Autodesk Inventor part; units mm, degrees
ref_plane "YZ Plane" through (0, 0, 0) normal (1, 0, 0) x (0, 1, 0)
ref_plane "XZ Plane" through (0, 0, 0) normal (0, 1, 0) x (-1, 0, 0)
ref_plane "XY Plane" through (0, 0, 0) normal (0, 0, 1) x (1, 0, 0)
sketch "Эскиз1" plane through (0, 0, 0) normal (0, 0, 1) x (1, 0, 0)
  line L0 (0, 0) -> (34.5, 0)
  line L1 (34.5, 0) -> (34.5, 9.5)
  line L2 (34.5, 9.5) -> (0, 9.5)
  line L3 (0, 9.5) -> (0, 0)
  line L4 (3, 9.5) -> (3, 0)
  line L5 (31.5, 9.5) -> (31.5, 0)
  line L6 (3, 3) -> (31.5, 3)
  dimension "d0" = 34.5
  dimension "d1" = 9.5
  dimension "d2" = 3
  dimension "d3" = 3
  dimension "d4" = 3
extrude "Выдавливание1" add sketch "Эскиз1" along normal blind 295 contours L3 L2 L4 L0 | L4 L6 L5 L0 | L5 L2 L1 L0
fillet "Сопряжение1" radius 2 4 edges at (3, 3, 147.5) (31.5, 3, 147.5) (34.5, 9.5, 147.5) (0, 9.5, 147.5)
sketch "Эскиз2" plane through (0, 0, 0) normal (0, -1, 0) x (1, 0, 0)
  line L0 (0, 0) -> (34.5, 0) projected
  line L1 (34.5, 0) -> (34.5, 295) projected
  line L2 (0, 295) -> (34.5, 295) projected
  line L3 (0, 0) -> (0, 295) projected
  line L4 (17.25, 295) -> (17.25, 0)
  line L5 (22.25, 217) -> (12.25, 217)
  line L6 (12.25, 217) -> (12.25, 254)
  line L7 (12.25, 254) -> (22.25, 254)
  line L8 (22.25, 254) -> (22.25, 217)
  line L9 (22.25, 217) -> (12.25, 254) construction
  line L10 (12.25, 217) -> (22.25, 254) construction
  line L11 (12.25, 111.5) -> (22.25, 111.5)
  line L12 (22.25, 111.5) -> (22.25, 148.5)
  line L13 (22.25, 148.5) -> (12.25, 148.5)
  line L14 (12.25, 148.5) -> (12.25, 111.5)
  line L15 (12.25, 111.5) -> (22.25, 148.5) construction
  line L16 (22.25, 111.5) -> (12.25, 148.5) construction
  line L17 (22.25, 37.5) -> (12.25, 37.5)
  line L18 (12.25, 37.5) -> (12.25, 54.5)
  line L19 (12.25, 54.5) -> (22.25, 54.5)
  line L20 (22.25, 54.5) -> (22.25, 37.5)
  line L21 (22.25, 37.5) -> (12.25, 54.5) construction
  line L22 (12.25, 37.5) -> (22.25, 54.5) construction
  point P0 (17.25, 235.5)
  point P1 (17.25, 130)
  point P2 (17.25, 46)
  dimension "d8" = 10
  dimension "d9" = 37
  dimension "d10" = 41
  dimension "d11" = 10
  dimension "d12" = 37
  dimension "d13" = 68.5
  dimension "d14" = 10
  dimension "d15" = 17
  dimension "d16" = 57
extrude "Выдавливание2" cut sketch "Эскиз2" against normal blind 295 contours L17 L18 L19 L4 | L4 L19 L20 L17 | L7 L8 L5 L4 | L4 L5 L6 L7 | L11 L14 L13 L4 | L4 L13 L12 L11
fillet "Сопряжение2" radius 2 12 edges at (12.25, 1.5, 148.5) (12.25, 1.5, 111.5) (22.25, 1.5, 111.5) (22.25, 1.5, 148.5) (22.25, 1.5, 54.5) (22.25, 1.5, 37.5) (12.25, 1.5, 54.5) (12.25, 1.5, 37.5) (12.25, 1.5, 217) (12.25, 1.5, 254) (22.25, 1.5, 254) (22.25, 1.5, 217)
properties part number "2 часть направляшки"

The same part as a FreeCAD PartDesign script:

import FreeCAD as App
import Part
import Sketcher

V = App.Vector


def edges_at(feature, points):
    """Names of the edges that pass closest to the given points."""
    edges = feature.Shape.Edges
    near = lambda p: min(range(len(edges)), key=lambda i: edges[i].distToShape(Part.Vertex(*p))[0])
    return sorted({f"Edge{near(p) + 1}" for p in points})


def add_polygon(sketch, points):
    """Adds a closed chain of lines whose ends are joined by coincident constraints."""
    first, n = sketch.GeometryCount, len(points)
    for a, b in zip(points, points[1:] + points[:1]):
        sketch.addGeometry(Part.LineSegment(App.Vector(*a, 0), App.Vector(*b, 0)), False)
    for i in range(n):
        sketch.addConstraint(Sketcher.Constraint("Coincident", first + i, 2, first + (i + 1) % n, 1))

doc = App.newDocument("Part")
params = doc.addObject("Spreadsheet::Sheet", "Params")
for row, (alias, value) in enumerate([
    ("sketch1_width", "3 mm"),
    ("sketch1_width2", "34.5 mm"),
    ("sketch1_height", "9.5 mm"),
    ("pad1_length", "295 mm"),
    ("fillet_radius", "2 mm"),
    ("sketch2_width", "10 mm"),
    ("sketch2_height", "17 mm"),
    ("sketch2_height2", "37 mm"),
    ("pocket1_length", "295 mm"),
    ("fillet2_radius", "2 mm"),
], start=1):
    params.set(f"A{row}", alias)
    params.set(f"B{row}", "=" + value)
    params.setAlias(f"B{row}", alias)

body = doc.addObject("PartDesign::Body", "Body")

# Sketch on XY plane
sketch1 = body.newObject("Sketcher::SketchObject", "Sketch")
sketch1.AttachmentSupport = (doc.getObject("XY_Plane"), [""])
sketch1.MapMode = "FlatFace"
add_polygon(sketch1, [(0, 9.5), (0, 0), (34.5, 0), (34.5, 9.5), (31.5, 9.5), (31.5, 3), (3, 3), (3, 9.5)])  # lines 0-7
sketch1.addConstraint(Sketcher.Constraint("Vertical", 0))
sketch1.addConstraint(Sketcher.Constraint("Horizontal", 1))
sketch1.addConstraint(Sketcher.Constraint("Vertical", 2))
sketch1.addConstraint(Sketcher.Constraint("Horizontal", 3))
sketch1.addConstraint(Sketcher.Constraint("Vertical", 4))
sketch1.addConstraint(Sketcher.Constraint("Horizontal", 5))
sketch1.addConstraint(Sketcher.Constraint("Vertical", 6))
sketch1.addConstraint(Sketcher.Constraint("Horizontal", 7))
sketch1.addConstraint(Sketcher.Constraint("Coincident", 0, 2, -1, 1))
sketch1.addConstraint(Sketcher.Constraint("Horizontal", 3, 2, 6, 2))
sketch1.addConstraint(Sketcher.Constraint("Equal", 3, 7))
sketch1.addConstraint(Sketcher.Constraint("DistanceX", 3, 2, 3, 1, 3.0))
sketch1.addConstraint(Sketcher.Constraint("DistanceX", 1, 1, 1, 2, 34.5))
sketch1.addConstraint(Sketcher.Constraint("DistanceY", 0, 2, 0, 1, 9.5))
sketch1.addConstraint(Sketcher.Constraint("DistanceY", -1, 1, 4, 2, 3.0))
sketch1.setExpression("Constraints[19]", "Params.sketch1_width")
sketch1.setExpression("Constraints[20]", "Params.sketch1_width2")
sketch1.setExpression("Constraints[21]", "Params.sketch1_height")
pad1 = body.newObject("PartDesign::Pad", "Pad")
pad1.Profile = sketch1
pad1.setExpression("Length", "Params.pad1_length")
doc.recompute()

fillet = body.newObject("PartDesign::Fillet", "Fillet")
fillet.Base = (pad1, edges_at(pad1, [
    (3, 3, 147.5),
    (31.5, 3, 147.5),
    (34.5, 9.5, 147.5),
    (0, 9.5, 147.5),
]))
fillet.setExpression("Radius", "Params.fillet_radius")

# Sketch on XZ plane
sketch2 = body.newObject("Sketcher::SketchObject", "Sketch001")
sketch2.AttachmentSupport = (doc.getObject("XZ_Plane"), [""])
sketch2.MapMode = "FlatFace"
add_polygon(sketch2, [(12, 38), (22, 38), (22, 54), (12, 54)])  # lines 0-3
add_polygon(sketch2, [(22, 254), (12, 254), (12, 217), (22, 217)])  # lines 4-7
add_polygon(sketch2, [(12, 112), (22, 112), (22, 148), (12, 148)])  # lines 8-11
sketch2.addConstraint(Sketcher.Constraint("Horizontal", 0))
sketch2.addConstraint(Sketcher.Constraint("Vertical", 1))
sketch2.addConstraint(Sketcher.Constraint("Horizontal", 2))
sketch2.addConstraint(Sketcher.Constraint("Vertical", 3))
sketch2.addConstraint(Sketcher.Constraint("Horizontal", 4))
sketch2.addConstraint(Sketcher.Constraint("Vertical", 5))
sketch2.addConstraint(Sketcher.Constraint("Horizontal", 6))
sketch2.addConstraint(Sketcher.Constraint("Vertical", 7))
sketch2.addConstraint(Sketcher.Constraint("Horizontal", 8))
sketch2.addConstraint(Sketcher.Constraint("Vertical", 9))
sketch2.addConstraint(Sketcher.Constraint("Horizontal", 10))
sketch2.addConstraint(Sketcher.Constraint("Vertical", 11))
sketch2.addConstraint(Sketcher.Constraint("Vertical", 3, 2, 4, 2))
sketch2.addConstraint(Sketcher.Constraint("Vertical", 1, 2, 6, 2))
sketch2.addConstraint(Sketcher.Constraint("Vertical", 7, 2, 8, 2))
sketch2.addConstraint(Sketcher.Constraint("Vertical", 5, 2, 10, 2))
sketch2.addConstraint(Sketcher.Constraint("Equal", 7, 9))
sketch2.addConstraint(Sketcher.Constraint("DistanceX", 0, 1, 0, 2, 10.0))
sketch2.addConstraint(Sketcher.Constraint("DistanceY", 1, 1, 1, 2, 17.0))
sketch2.addConstraint(Sketcher.Constraint("DistanceY", 5, 2, 5, 1, 37.0))
sketch2.addConstraint(Sketcher.Constraint("DistanceY", 1, 2, 8, 2, 57.0))
sketch2.addConstraint(Sketcher.Constraint("DistanceY", 9, 2, 6, 2, 68.5))
sketch2.addConstraint(Sketcher.Constraint("DistanceY", -1, 1, 4, 2, 254.0))
sketch2.addConstraint(Sketcher.Constraint("DistanceX", -1, 1, 0, 2, 22.25))
sketch2.setExpression("Constraints[29]", "Params.sketch2_width")
sketch2.setExpression("Constraints[30]", "Params.sketch2_height")
sketch2.setExpression("Constraints[31]", "Params.sketch2_height2")
pocket1 = body.newObject("PartDesign::Pocket", "Pocket")
pocket1.Profile = sketch2
pocket1.setExpression("Length", "Params.pocket1_length")
doc.recompute()

fillet2 = body.newObject("PartDesign::Fillet", "Fillet001")
fillet2.Base = (pocket1, edges_at(pocket1, [
    (12.25, 1.5, 148.5),
    (12.25, 1.5, 111.5),
    (22.25, 1.5, 111.5),
    (22.25, 1.5, 148.5),
    (22.25, 1.5, 54.5),
    (22.25, 1.5, 37.5),
    (12.25, 1.5, 54.5),
    (12.25, 1.5, 37.5),
    (12.25, 1.5, 217),
    (12.25, 1.5, 254),
    (22.25, 1.5, 254),
    (22.25, 1.5, 217),
]))
fillet2.setExpression("Radius", "Params.fillet2_radius")

doc.recompute()
